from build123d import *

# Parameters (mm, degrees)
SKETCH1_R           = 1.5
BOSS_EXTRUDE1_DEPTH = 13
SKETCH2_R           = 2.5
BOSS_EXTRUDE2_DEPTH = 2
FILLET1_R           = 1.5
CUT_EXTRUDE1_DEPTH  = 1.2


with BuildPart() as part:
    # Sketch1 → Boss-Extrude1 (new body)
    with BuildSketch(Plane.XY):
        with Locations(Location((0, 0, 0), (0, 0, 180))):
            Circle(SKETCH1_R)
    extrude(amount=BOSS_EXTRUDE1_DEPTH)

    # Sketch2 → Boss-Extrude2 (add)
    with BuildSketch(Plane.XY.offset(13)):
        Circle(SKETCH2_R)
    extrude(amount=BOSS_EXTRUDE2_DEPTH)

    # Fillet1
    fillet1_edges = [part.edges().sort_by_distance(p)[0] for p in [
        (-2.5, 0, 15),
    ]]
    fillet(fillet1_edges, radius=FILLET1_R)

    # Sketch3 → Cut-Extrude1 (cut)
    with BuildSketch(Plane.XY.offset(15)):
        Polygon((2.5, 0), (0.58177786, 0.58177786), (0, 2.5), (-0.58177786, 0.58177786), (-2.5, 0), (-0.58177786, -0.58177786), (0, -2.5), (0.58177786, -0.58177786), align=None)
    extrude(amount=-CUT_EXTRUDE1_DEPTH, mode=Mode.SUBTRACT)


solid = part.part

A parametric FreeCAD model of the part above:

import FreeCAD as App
import Part
import Sketcher
from FreeCAD import Vector


def edges_at(feature, points):
    """Names of the edges that pass closest to the given points."""
    edges = feature.Shape.Edges
    near = lambda p: min(range(len(edges)), key=lambda i: edges[i].distToShape(Part.Vertex(*p))[0])
    return sorted({f"Edge{near(p) + 1}" for p in points})


def add_polygon(sketch, points):
    """Adds a closed chain of lines whose ends are joined by coincident constraints."""
    first, n = sketch.GeometryCount, len(points)
    for a, b in zip(points, points[1:] + points[:1]):
        sketch.addGeometry(Part.LineSegment(App.Vector(*a, 0), App.Vector(*b, 0)), False)
    for i in range(n):
        sketch.addConstraint(Sketcher.Constraint("Coincident", first + i, 2, first + (i + 1) % n, 1))

doc = App.newDocument("Part")
body = doc.addObject("PartDesign::Body", "Body")

sketch1 = doc.addObject("Sketcher::SketchObject", "Sketch")
body.addObject(sketch1)
sketch1.AttachmentSupport = (doc.XY_Plane, [""])
sketch1.MapMode = "FlatFace"
sketch1.addGeometry(Part.Circle(Vector(0, 0, 0), Vector(0, 0, 1), 1.5), False)
sketch1.addConstraint([
    Sketcher.Constraint("Coincident", 0, 3, -1, 1),
    Sketcher.Constraint("Diameter", 0, 3.0),
])
pad1 = doc.addObject("PartDesign::Pad", "Pad")
body.addObject(pad1)
pad1.Profile = sketch1
pad1.Length = 13

sketch2 = doc.addObject("Sketcher::SketchObject", "Sketch001")
body.addObject(sketch2)
sketch2.AttachmentSupport = (doc.XY_Plane, [""])
sketch2.MapMode = "FlatFace"
sketch2.AttachmentOffset = App.Placement(Vector(0, 0, 13), App.Rotation())
sketch2.addGeometry(Part.Circle(Vector(0, 0, 0), Vector(0, 0, 1), 2.5), False)
sketch2.addConstraint([
    Sketcher.Constraint("Coincident", 0, 3, -1, 1),
    Sketcher.Constraint("Diameter", 0, 5.0),
])
pad2 = doc.addObject("PartDesign::Pad", "Pad001")
body.addObject(pad2)
pad2.Profile = sketch2
pad2.Length = 2
doc.recompute()

fillet = doc.addObject("PartDesign::Fillet", "Fillet")
body.addObject(fillet)
fillet.Base = (pad2, edges_at(pad2, [(-2.5, 0, 15)]))
fillet.Radius = 1.5

sketch3 = doc.addObject("Sketcher::SketchObject", "Sketch002")
body.addObject(sketch3)
sketch3.AttachmentSupport = (doc.XY_Plane, [""])
sketch3.MapMode = "FlatFace"
sketch3.AttachmentOffset = App.Placement(Vector(0, 0, 15), App.Rotation())
add_polygon(sketch3, [(2.5, 0), (0.581778, 0.581778), (0, 2.5), (-0.581778, 0.581778), (-2.5, 0), (-0.581778, -0.581778), (0, -2.5), (0.581778, -0.581778)])
sketch3.addConstraint([
    Sketcher.Constraint("Symmetric", 0, 2, 4, 2, -1, 1),
    Sketcher.Constraint("Symmetric", 1, 2, 5, 2, -1, 1),
    Sketcher.Constraint("Symmetric", 2, 2, 6, 2, -1, 1),
    Sketcher.Constraint("Symmetric", 3, 2, 7, 2, -1, 1),
    Sketcher.Constraint("Symmetric", 0, 2, 2, 2, -2),
    Sketcher.Constraint("PointOnObject", 1, 2, -2),
    Sketcher.Constraint("PointOnObject", 3, 2, -1),
    Sketcher.Constraint("Perpendicular", 0, 2),
    Sketcher.Constraint("Equal", 0, 1),
    Sketcher.Constraint("DistanceY", 5, 2, 1, 2, 5.0),
    Sketcher.Constraint("Distance", 0, 2.004505),
])
pocket1 = doc.addObject("PartDesign::Pocket", "Pocket")
body.addObject(pocket1)
pocket1.Profile = sketch3
pocket1.Length = 1.2

doc.recompute()
